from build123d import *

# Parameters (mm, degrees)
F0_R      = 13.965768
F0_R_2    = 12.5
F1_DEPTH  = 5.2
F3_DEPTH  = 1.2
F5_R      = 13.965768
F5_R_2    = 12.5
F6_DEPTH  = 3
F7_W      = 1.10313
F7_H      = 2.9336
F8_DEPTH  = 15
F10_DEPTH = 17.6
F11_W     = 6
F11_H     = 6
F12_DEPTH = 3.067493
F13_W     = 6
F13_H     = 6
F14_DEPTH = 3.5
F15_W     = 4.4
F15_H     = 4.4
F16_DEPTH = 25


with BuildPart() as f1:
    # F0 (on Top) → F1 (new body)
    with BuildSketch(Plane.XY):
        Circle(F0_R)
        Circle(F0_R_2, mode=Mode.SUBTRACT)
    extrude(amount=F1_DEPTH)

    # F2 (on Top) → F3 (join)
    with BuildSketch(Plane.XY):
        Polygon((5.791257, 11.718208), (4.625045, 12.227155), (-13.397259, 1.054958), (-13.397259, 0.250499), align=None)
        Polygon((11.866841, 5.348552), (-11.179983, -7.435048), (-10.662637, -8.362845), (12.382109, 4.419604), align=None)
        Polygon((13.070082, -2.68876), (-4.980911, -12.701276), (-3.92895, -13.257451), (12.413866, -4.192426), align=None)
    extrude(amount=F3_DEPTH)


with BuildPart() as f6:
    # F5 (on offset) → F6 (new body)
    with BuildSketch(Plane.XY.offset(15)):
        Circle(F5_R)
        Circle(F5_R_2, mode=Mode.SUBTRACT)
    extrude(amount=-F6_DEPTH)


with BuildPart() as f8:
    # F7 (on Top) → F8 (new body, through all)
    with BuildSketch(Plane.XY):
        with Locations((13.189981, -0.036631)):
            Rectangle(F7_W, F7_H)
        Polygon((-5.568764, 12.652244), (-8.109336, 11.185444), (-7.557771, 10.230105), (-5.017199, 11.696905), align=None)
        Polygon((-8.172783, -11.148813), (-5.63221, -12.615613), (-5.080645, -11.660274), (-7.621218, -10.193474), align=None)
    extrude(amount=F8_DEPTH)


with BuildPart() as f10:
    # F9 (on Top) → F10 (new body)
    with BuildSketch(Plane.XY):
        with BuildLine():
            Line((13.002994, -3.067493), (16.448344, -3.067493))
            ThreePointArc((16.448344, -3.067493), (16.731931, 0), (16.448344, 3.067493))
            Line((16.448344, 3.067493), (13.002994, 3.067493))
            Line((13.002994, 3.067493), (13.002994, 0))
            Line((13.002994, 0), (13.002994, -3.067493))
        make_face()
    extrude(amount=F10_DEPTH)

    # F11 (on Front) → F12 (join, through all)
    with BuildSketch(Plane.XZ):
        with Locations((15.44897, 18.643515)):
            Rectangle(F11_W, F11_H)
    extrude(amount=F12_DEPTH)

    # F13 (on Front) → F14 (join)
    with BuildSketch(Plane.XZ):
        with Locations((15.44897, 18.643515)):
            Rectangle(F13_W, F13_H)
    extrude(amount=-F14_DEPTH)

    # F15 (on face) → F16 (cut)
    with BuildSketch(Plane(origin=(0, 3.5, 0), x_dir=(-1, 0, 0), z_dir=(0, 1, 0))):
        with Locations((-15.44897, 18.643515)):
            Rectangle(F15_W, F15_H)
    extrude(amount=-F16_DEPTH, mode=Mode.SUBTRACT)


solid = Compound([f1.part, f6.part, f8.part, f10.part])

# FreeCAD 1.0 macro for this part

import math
import FreeCAD as App
import Part
import Sketcher

V = App.Vector
Q = App.Units.Quantity

doc = App.newDocument("Part")
body = doc.addObject("PartDesign::Body", "Body")

sketch1 = doc.addObject("Sketcher::SketchObject", "Sketch")
body.addObject(sketch1)
sketch1.AttachmentSupport = (doc.XY_Plane, [""])
sketch1.MapMode = "FlatFace"
sketch1.addGeometry(Part.Circle(V(0, 0, 0), V(0, 0, 1), 14), False)
sketch1.addGeometry(Part.Circle(V(0, 0, 0), V(0, 0, 1), 12), False)
sketch1.addConstraint(Sketcher.Constraint("Coincident", 0, 3, -1, 1))
sketch1.addConstraint(Sketcher.Constraint("Coincident", 1, 3, -1, 1))
sketch1.addConstraint(Sketcher.Constraint("Diameter", 1, Q("25 mm")))
sketch1.addConstraint(Sketcher.Constraint("Diameter", 0, Q("27.931536 mm")))
pad1 = doc.addObject("PartDesign::Pad", "Pad")
body.addObject(pad1)
pad1.Profile = sketch1
pad1.Length = 5.2

sketch2 = doc.addObject("Sketcher::SketchObject", "Sketch001")
body.addObject(sketch2)
sketch2.AttachmentSupport = (doc.XY_Plane, [""])
sketch2.MapMode = "FlatFace"
sketch2.addGeometry(Part.LineSegment(V(5.791257, 11.718208, 0), V(4.625045, 12.227155, 0)), False)
sketch2.addGeometry(Part.LineSegment(V(4.625045, 12.227155, 0), V(-13.397259, 1.054958, 0)), False)
sketch2.addGeometry(Part.LineSegment(V(-13.397259, 1.054958, 0), V(-13.397259, 0.250499, 0)), False)
sketch2.addGeometry(Part.LineSegment(V(-13.397259, 0.250499, 0), V(5.791257, 11.718208, 0)), False)
sketch2.addGeometry(Part.LineSegment(V(11.866841, 5.348552, 0), V(-11.179983, -7.435048, 0)), False)
sketch2.addGeometry(Part.LineSegment(V(-11.179983, -7.435048, 0), V(-10.662637, -8.362845, 0)), False)
sketch2.addGeometry(Part.LineSegment(V(-10.662637, -8.362845, 0), V(12.382109, 4.419604, 0)), False)
sketch2.addGeometry(Part.LineSegment(V(12.382109, 4.419604, 0), V(11.866841, 5.348552, 0)), False)
sketch2.addGeometry(Part.LineSegment(V(13.070082, -2.68876, 0), V(-4.980911, -12.701276, 0)), False)
sketch2.addGeometry(Part.LineSegment(V(-4.980911, -12.701276, 0), V(-3.92895, -13.257451, 0)), False)
sketch2.addGeometry(Part.LineSegment(V(-3.92895, -13.257451, 0), V(12.413866, -4.192426, 0)), False)
sketch2.addGeometry(Part.LineSegment(V(12.413866, -4.192426, 0), V(13.070082, -2.68876, 0)), False)
sketch2.addConstraint(Sketcher.Constraint("Coincident", 0, 2, 1, 1))
sketch2.addConstraint(Sketcher.Constraint("Coincident", 1, 2, 2, 1))
sketch2.addConstraint(Sketcher.Constraint("Coincident", 2, 2, 3, 1))
sketch2.addConstraint(Sketcher.Constraint("Coincident", 3, 2, 0, 1))
sketch2.addConstraint(Sketcher.Constraint("Coincident", 4, 2, 5, 1))
sketch2.addConstraint(Sketcher.Constraint("Coincident", 5, 2, 6, 1))
sketch2.addConstraint(Sketcher.Constraint("Coincident", 6, 2, 7, 1))
sketch2.addConstraint(Sketcher.Constraint("Coincident", 7, 2, 4, 1))
sketch2.addConstraint(Sketcher.Constraint("Coincident", 8, 2, 9, 1))
sketch2.addConstraint(Sketcher.Constraint("Coincident", 9, 2, 10, 1))
sketch2.addConstraint(Sketcher.Constraint("Coincident", 10, 2, 11, 1))
sketch2.addConstraint(Sketcher.Constraint("Coincident", 11, 2, 8, 1))
sketch2.addConstraint(Sketcher.Constraint("Vertical", 2))
sketch2.addConstraint(Sketcher.Constraint("DistanceY", 5, 2, 0, 2, Q("20.59 mm")))
sketch2.addConstraint(Sketcher.Constraint("DistanceY", 2, 2, 2, 1, Q("0.804459 mm")))
sketch2.addConstraint(Sketcher.Constraint("DistanceY", -1, 1, 2, 2, Q("0.250499 mm")))
sketch2.addConstraint(Sketcher.Constraint("DistanceX", 1, 2, 7, 2, Q("25.2641 mm")))
sketch2.addConstraint(Sketcher.Constraint("Distance", 0, Q("1.27243 mm")))
sketch2.addConstraint(Sketcher.Constraint("Distance", 1, Q("21.204279 mm")))
sketch2.addConstraint(Sketcher.Constraint("Distance", 3, Q("22.354138 mm")))
sketch2.addConstraint(Sketcher.Constraint("Distance", 4, Q("26.35482 mm")))
sketch2.addConstraint(Sketcher.Constraint("Distance", 8, Q("20.641919 mm")))
sketch2.addConstraint(Sketcher.Constraint("Distance", 9, Q("1.189938 mm")))
sketch2.addConstraint(Sketcher.Constraint("Distance", 10, Q("18.688561 mm")))
sketch2.addConstraint(Sketcher.Constraint("Distance", 11, Q("1.640619 mm")))
sketch2.addConstraint(Sketcher.Constraint("DistanceX", 1, 2, -1, 1, Q("13.397259 mm")))
sketch2.addConstraint(Sketcher.Constraint("DistanceY", -1, 1, 3, 2, Q("11.718208 mm")))
sketch2.addConstraint(Sketcher.Constraint("DistanceX", -1, 1, 6, 2, Q("12.382109 mm")))
sketch2.addConstraint(Sketcher.Constraint("DistanceY", -1, 1, 7, 2, Q("5.348552 mm")))
sketch2.addConstraint(Sketcher.Constraint("DistanceX", 8, 2, -1, 1, Q("4.980911 mm")))
sketch2.addConstraint(Sketcher.Constraint("DistanceX", 9, 2, -1, 1, Q("3.92895 mm")))
sketch2.addConstraint(Sketcher.Constraint("DistanceY", 9, 2, -1, 1, Q("13.257451 mm")))
sketch2.addConstraint(Sketcher.Constraint("DistanceX", -1, 1, 11, 2, Q("13.070082 mm")))
sketch2.addConstraint(Sketcher.Constraint("DistanceX", 4, 2, 3, 2, Q("16.97124 mm")))
sketch2.addConstraint(Sketcher.Constraint("DistanceX", 2, 2, 5, 2, Q("2.734622 mm")))
sketch2.addConstraint(Sketcher.Constraint("DistanceY", 6, 2, 0, 2, Q("7.807551 mm")))
pad2 = doc.addObject("PartDesign::Pad", "Pad001")
body.addObject(pad2)
pad2.Profile = sketch2
pad2.Length = 1.2
body2 = doc.addObject("PartDesign::Body", "Body001")

sketch3 = doc.addObject("Sketcher::SketchObject", "Sketch002")
body2.addObject(sketch3)
sketch3.AttachmentSupport = (doc.getObject("XY_Plane001"), [""])
sketch3.MapMode = "FlatFace"
sketch3.AttachmentOffset = App.Placement(V(0, 0, 15), App.Rotation())
sketch3.addGeometry(Part.Circle(V(0, 0, 0), V(0, 0, 1), 14), False)
sketch3.addGeometry(Part.Circle(V(0, 0, 0), V(0, 0, 1), 12), False)
sketch3.addConstraint(Sketcher.Constraint("Coincident", 0, 3, -1, 1))
sketch3.addConstraint(Sketcher.Constraint("Coincident", 1, 3, -1, 1))
sketch3.addConstraint(Sketcher.Constraint("Diameter", 1, Q("25 mm")))
sketch3.addConstraint(Sketcher.Constraint("Diameter", 0, Q("27.931536 mm")))
pad3 = doc.addObject("PartDesign::Pad", "Pad002")
body2.addObject(pad3)
pad3.Profile = sketch3
pad3.Length = 3
pad3.Reversed = True
body3 = doc.addObject("PartDesign::Body", "Body002")
body3.AllowCompound = True

sketch4 = doc.addObject("Sketcher::SketchObject", "Sketch003")
body3.addObject(sketch4)
sketch4.AttachmentSupport = (doc.getObject("XY_Plane002"), [""])
sketch4.MapMode = "FlatFace"
sketch4.addGeometry(Part.LineSegment(V(12.6, 1.4, 0), V(12.6, -1.5, 0)), False)
sketch4.addGeometry(Part.LineSegment(V(12.6, -1.5, 0), V(13.7, -1.5, 0)), False)
sketch4.addGeometry(Part.LineSegment(V(13.7, -1.5, 0), V(13.7, 1.4, 0)), False)
sketch4.addGeometry(Part.LineSegment(V(13.7, 1.4, 0), V(12.6, 1.4, 0)), False)
sketch4.addGeometry(Part.LineSegment(V(-5.6, 12.7, 0), V(-8.1, 11.2, 0)), False)
sketch4.addGeometry(Part.LineSegment(V(-8.1, 11.2, 0), V(-7.6, 10.2, 0)), False)
sketch4.addGeometry(Part.LineSegment(V(-7.6, 10.2, 0), V(-5, 11.7, 0)), False)
sketch4.addGeometry(Part.LineSegment(V(-5, 11.7, 0), V(-5.6, 12.7, 0)), False)
sketch4.addGeometry(Part.LineSegment(V(-8.2, -11.1, 0), V(-5.6, -12.6, 0)), False)
sketch4.addGeometry(Part.LineSegment(V(-5.6, -12.6, 0), V(-5.1, -11.7, 0)), False)
sketch4.addGeometry(Part.LineSegment(V(-5.1, -11.7, 0), V(-7.6, -10.2, 0)), False)
sketch4.addGeometry(Part.LineSegment(V(-7.6, -10.2, 0), V(-8.2, -11.1, 0)), False)
sketch4.addConstraint(Sketcher.Constraint("Coincident", 0, 2, 1, 1))
sketch4.addConstraint(Sketcher.Constraint("Coincident", 1, 2, 2, 1))
sketch4.addConstraint(Sketcher.Constraint("Coincident", 2, 2, 3, 1))
sketch4.addConstraint(Sketcher.Constraint("Coincident", 3, 2, 0, 1))
sketch4.addConstraint(Sketcher.Constraint("Coincident", 4, 2, 5, 1))
sketch4.addConstraint(Sketcher.Constraint("Coincident", 5, 2, 6, 1))
sketch4.addConstraint(Sketcher.Constraint("Coincident", 6, 2, 7, 1))
sketch4.addConstraint(Sketcher.Constraint("Coincident", 7, 2, 4, 1))
sketch4.addConstraint(Sketcher.Constraint("Coincident", 8, 2, 9, 1))
sketch4.addConstraint(Sketcher.Constraint("Coincident", 9, 2, 10, 1))
sketch4.addConstraint(Sketcher.Constraint("Coincident", 10, 2, 11, 1))
sketch4.addConstraint(Sketcher.Constraint("Coincident", 11, 2, 8, 1))
sketch4.addConstraint(Sketcher.Constraint("Vertical", 0))
sketch4.addConstraint(Sketcher.Constraint("Horizontal", 1))
sketch4.addConstraint(Sketcher.Constraint("Vertical", 2))
sketch4.addConstraint(Sketcher.Constraint("Horizontal", 3))
sketch4.addConstraint(Sketcher.Constraint("Perpendicular", 4, 5))
sketch4.addConstraint(Sketcher.Constraint("Perpendicular", 5, 6))
sketch4.addConstraint(Sketcher.Constraint("Perpendicular", 6, 7))
sketch4.addConstraint(Sketcher.Constraint("Perpendicular", 8, 9))
sketch4.addConstraint(Sketcher.Constraint("Perpendicular", 9, 10))
sketch4.addConstraint(Sketcher.Constraint("Perpendicular", 10, 11))
sketch4.addConstraint(Sketcher.Constraint("Equal", 6, 8))
sketch4.addConstraint(Sketcher.Constraint("Equal", 7, 9))
sketch4.addConstraint(Sketcher.Constraint("Angle", 4, Q("-149.999999 deg")))
sketch4.addConstraint(Sketcher.Constraint("Angle", 8, Q("-29.999991 deg")))
sketch4.addConstraint(Sketcher.Constraint("DistanceY", 0, 2, 0, 1, Q("2.9336 mm")))
sketch4.addConstraint(Sketcher.Constraint("Distance", 4, Q("2.9336 mm")))
sketch4.addConstraint(Sketcher.Constraint("DistanceX", 1, 1, 1, 2, Q("1.10313 mm")))
sketch4.addConstraint(Sketcher.Constraint("DistanceX", 6, 2, -1, 1, Q("5.017199 mm")))
sketch4.addConstraint(Sketcher.Constraint("Distance", 5, Q("1.10313 mm")))
sketch4.addConstraint(Sketcher.Constraint("DistanceY", 0, 2, -1, 1, Q("1.503431 mm")))
sketch4.addConstraint(Sketcher.Constraint("DistanceX", 8, 2, -1, 1, Q("5.63221 mm")))
sketch4.addConstraint(Sketcher.Constraint("DistanceX", 4, 2, 3, 2, Q("20.747752 mm")))
sketch4.addConstraint(Sketcher.Constraint("DistanceY", 8, 2, 3, 2, Q("14.045782 mm")))
sketch4.addConstraint(Sketcher.Constraint("DistanceY", 9, 2, 5, 2, Q("21.890379 mm")))
pad4 = doc.addObject("PartDesign::Pad", "Pad003")
body3.addObject(pad4)
pad4.Profile = sketch4
pad4.Length = 15
body4 = doc.addObject("PartDesign::Body", "Body003")

sketch5 = doc.addObject("Sketcher::SketchObject", "Sketch004")
body4.addObject(sketch5)
sketch5.AttachmentSupport = (doc.getObject("XY_Plane003"), [""])
sketch5.MapMode = "FlatFace"
sketch5.addGeometry(Part.LineSegment(V(13, -3.1, 0), V(16.4, -3.1, 0)), False)
sketch5.addGeometry(Part.ArcOfCircle(Part.Circle(V(0, 0, 0), V(0, 0, 1), 16.7), math.radians(-11), math.radians(11)), False)
sketch5.addGeometry(Part.LineSegment(V(16.4, 3.1, 0), V(13, 3.1, 0)), False)
sketch5.addGeometry(Part.LineSegment(V(13, 3.1, 0), V(13, -3.1, 0)), False)
sketch5.addConstraint(Sketcher.Constraint("Coincident", 0, 2, 1, 1))
sketch5.addConstraint(Sketcher.Constraint("Coincident", 1, 2, 2, 1))
sketch5.addConstraint(Sketcher.Constraint("Coincident", 2, 2, 3, 1))
sketch5.addConstraint(Sketcher.Constraint("Coincident", 3, 2, 0, 1))
sketch5.addConstraint(Sketcher.Constraint("Horizontal", 0))
sketch5.addConstraint(Sketcher.Constraint("Horizontal", 2))
sketch5.addConstraint(Sketcher.Constraint("Vertical", 3))
sketch5.addConstraint(Sketcher.Constraint("Symmetric", 0, 2, 1, 2, -1))
sketch5.addConstraint(Sketcher.Constraint("Radius", 1, Q("16.731964 mm")))
sketch5.addConstraint(Sketcher.Constraint("DistanceX", 0, 1, 0, 2, Q("3.44535 mm")))
sketch5.addConstraint(Sketcher.Constraint("DistanceY", 3, 2, 3, 1, Q("6.134986 mm")))
sketch5.addConstraint(Sketcher.Constraint("DistanceX", -1, 1, 0, 2, Q("16.448344 mm")))
pad5 = doc.addObject("PartDesign::Pad", "Pad004")
body4.addObject(pad5)
pad5.Profile = sketch5
pad5.Length = 17.6

sketch6 = doc.addObject("Sketcher::SketchObject", "Sketch005")
body4.addObject(sketch6)
sketch6.AttachmentSupport = (doc.getObject("XZ_Plane003"), [""])
sketch6.MapMode = "FlatFace"
sketch6.addGeometry(Part.LineSegment(V(12, 22, 0), V(12, 16, 0)), False)
sketch6.addGeometry(Part.LineSegment(V(12, 16, 0), V(18, 16, 0)), False)
sketch6.addGeometry(Part.LineSegment(V(18, 16, 0), V(18, 22, 0)), False)
sketch6.addGeometry(Part.LineSegment(V(18, 22, 0), V(12, 22, 0)), False)
sketch6.addConstraint(Sketcher.Constraint("Coincident", 0, 2, 1, 1))
sketch6.addConstraint(Sketcher.Constraint("Coincident", 1, 2, 2, 1))
sketch6.addConstraint(Sketcher.Constraint("Coincident", 2, 2, 3, 1))
sketch6.addConstraint(Sketcher.Constraint("Coincident", 3, 2, 0, 1))
sketch6.addConstraint(Sketcher.Constraint("Vertical", 0))
sketch6.addConstraint(Sketcher.Constraint("Horizontal", 1))
sketch6.addConstraint(Sketcher.Constraint("Vertical", 2))
sketch6.addConstraint(Sketcher.Constraint("Horizontal", 3))
sketch6.addConstraint(Sketcher.Constraint("Equal", 3, 0))
sketch6.addConstraint(Sketcher.Constraint("DistanceX", 1, 1, 1, 2, Q("6 mm")))
sketch6.addConstraint(Sketcher.Constraint("DistanceX", -1, 1, 0, 2, Q("12.44897 mm")))
sketch6.addConstraint(Sketcher.Constraint("DistanceY", -1, 1, 0, 2, Q("15.643515 mm")))
pad6 = doc.addObject("PartDesign::Pad", "Pad005")
body4.addObject(pad6)
pad6.Profile = sketch6
pad6.Length = 3.067493

sketch7 = doc.addObject("Sketcher::SketchObject", "Sketch006")
body4.addObject(sketch7)
sketch7.AttachmentSupport = (doc.getObject("XZ_Plane003"), [""])
sketch7.MapMode = "FlatFace"
sketch7.addGeometry(Part.LineSegment(V(12, 22, 0), V(12, 16, 0)), False)
sketch7.addGeometry(Part.LineSegment(V(12, 16, 0), V(18, 16, 0)), False)
sketch7.addGeometry(Part.LineSegment(V(18, 16, 0), V(18, 22, 0)), False)
sketch7.addGeometry(Part.LineSegment(V(18, 22, 0), V(12, 22, 0)), False)
sketch7.addConstraint(Sketcher.Constraint("Coincident", 0, 2, 1, 1))
sketch7.addConstraint(Sketcher.Constraint("Coincident", 1, 2, 2, 1))
sketch7.addConstraint(Sketcher.Constraint("Coincident", 2, 2, 3, 1))
sketch7.addConstraint(Sketcher.Constraint("Coincident", 3, 2, 0, 1))
sketch7.addConstraint(Sketcher.Constraint("Vertical", 0))
sketch7.addConstraint(Sketcher.Constraint("Horizontal", 1))
sketch7.addConstraint(Sketcher.Constraint("Vertical", 2))
sketch7.addConstraint(Sketcher.Constraint("Horizontal", 3))
sketch7.addConstraint(Sketcher.Constraint("Equal", 3, 0))
sketch7.addConstraint(Sketcher.Constraint("DistanceX", 1, 1, 1, 2, Q("6 mm")))
sketch7.addConstraint(Sketcher.Constraint("DistanceX", -1, 1, 0, 2, Q("12.44897 mm")))
sketch7.addConstraint(Sketcher.Constraint("DistanceY", -1, 1, 0, 2, Q("15.643515 mm")))
pad7 = doc.addObject("PartDesign::Pad", "Pad006")
body4.addObject(pad7)
pad7.Profile = sketch7
pad7.Length = 3.5
pad7.Reversed = True

sketch8 = doc.addObject("Sketcher::SketchObject", "Sketch007")
body4.addObject(sketch8)
sketch8.AttachmentSupport = (doc.getObject("XZ_Plane003"), [""])
sketch8.MapMode = "FlatFace"
sketch8.AttachmentOffset = App.Placement(V(0, 0, -3.5), App.Rotation())
sketch8.addGeometry(Part.LineSegment(V(17.6, 20.8, 0), V(17.6, 16.4, 0)), False)
sketch8.addGeometry(Part.LineSegment(V(17.6, 16.4, 0), V(13.2, 16.4, 0)), False)
sketch8.addGeometry(Part.LineSegment(V(13.2, 16.4, 0), V(13.2, 20.8, 0)), False)
sketch8.addGeometry(Part.LineSegment(V(13.2, 20.8, 0), V(17.6, 20.8, 0)), False)
sketch8.addConstraint(Sketcher.Constraint("Coincident", 0, 2, 1, 1))
sketch8.addConstraint(Sketcher.Constraint("Coincident", 1, 2, 2, 1))
sketch8.addConstraint(Sketcher.Constraint("Coincident", 2, 2, 3, 1))
sketch8.addConstraint(Sketcher.Constraint("Coincident", 3, 2, 0, 1))
sketch8.addConstraint(Sketcher.Constraint("Vertical", 0))
sketch8.addConstraint(Sketcher.Constraint("Horizontal", 1))
sketch8.addConstraint(Sketcher.Constraint("Vertical", 2))
sketch8.addConstraint(Sketcher.Constraint("Horizontal", 3))
sketch8.addConstraint(Sketcher.Constraint("Equal", 3, 0))
sketch8.addConstraint(Sketcher.Constraint("DistanceX", 1, 2, 1, 1, Q("4.4 mm")))
sketch8.addConstraint(Sketcher.Constraint("DistanceX", -1, 1, 0, 2, Q("17.64897 mm")))
sketch8.addConstraint(Sketcher.Constraint("DistanceY", -1, 1, 0, 2, Q("16.443515 mm")))
pocket1 = doc.addObject("PartDesign::Pocket", "Pocket")
body4.addObject(pocket1)
pocket1.Profile = sketch8
pocket1.Length = 25
pocket1.Reversed = True

doc.recompute()
